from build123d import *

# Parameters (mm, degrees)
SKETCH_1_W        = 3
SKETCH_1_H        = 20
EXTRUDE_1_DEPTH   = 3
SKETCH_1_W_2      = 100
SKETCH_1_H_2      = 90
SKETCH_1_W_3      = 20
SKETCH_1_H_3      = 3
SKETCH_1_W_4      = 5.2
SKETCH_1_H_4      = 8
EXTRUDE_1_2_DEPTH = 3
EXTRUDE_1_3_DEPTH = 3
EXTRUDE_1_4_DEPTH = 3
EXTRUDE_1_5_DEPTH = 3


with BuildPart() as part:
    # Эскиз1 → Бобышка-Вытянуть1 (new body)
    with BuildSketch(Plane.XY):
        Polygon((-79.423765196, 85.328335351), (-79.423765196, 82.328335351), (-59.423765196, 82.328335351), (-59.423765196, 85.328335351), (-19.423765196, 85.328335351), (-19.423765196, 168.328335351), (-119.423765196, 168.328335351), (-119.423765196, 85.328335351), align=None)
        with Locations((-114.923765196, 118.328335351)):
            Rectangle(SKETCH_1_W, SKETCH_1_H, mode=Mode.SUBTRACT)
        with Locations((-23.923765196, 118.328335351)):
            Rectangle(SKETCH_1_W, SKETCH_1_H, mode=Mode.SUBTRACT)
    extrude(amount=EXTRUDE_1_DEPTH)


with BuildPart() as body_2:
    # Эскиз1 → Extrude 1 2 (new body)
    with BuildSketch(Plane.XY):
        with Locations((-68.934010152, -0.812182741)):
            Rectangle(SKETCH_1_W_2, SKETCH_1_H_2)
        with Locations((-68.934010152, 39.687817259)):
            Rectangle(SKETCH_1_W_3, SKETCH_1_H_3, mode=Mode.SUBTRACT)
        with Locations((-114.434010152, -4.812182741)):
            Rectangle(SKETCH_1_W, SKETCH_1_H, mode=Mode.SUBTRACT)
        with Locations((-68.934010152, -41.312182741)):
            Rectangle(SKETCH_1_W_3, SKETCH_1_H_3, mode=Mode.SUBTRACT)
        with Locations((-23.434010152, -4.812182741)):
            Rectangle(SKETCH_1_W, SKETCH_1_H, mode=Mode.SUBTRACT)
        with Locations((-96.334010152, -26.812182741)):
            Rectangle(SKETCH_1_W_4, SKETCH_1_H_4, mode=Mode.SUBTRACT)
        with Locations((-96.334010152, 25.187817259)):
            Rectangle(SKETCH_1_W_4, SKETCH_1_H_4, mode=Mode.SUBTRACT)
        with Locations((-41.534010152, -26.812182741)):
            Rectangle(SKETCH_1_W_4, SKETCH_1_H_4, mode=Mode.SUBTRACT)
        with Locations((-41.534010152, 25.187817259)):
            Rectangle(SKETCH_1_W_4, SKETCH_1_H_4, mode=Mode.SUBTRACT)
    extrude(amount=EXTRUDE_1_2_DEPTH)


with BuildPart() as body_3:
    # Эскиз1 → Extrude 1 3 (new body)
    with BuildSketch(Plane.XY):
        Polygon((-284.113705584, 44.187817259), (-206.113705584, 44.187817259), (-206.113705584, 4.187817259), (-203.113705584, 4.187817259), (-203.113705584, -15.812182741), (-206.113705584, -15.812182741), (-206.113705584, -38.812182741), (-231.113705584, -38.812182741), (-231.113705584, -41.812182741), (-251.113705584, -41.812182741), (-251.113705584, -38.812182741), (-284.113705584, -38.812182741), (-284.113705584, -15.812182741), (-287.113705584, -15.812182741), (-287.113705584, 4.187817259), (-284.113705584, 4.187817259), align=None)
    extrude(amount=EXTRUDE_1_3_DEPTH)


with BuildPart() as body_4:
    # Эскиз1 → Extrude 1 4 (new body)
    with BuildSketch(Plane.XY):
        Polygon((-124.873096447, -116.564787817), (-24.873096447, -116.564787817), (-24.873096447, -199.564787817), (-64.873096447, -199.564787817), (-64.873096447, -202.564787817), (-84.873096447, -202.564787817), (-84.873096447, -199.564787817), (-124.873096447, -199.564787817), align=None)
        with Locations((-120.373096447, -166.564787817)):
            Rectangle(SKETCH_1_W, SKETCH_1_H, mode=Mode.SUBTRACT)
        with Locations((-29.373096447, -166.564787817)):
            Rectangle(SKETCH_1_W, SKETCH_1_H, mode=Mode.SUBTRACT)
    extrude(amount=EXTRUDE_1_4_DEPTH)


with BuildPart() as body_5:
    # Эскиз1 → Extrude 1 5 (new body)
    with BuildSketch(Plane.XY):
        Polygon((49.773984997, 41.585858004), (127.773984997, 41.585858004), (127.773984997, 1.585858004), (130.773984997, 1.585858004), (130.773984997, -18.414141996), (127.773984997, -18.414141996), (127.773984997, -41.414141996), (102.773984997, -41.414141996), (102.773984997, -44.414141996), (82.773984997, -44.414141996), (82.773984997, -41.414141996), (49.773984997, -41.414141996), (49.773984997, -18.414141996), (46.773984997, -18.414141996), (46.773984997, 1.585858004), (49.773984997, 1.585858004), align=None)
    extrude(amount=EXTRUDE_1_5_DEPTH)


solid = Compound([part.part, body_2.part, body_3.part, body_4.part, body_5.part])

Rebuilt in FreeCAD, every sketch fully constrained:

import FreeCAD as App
import Part
import Sketcher

V = App.Vector
Q = App.Units.Quantity


def add_polygon(sketch, points):
    """Adds a closed chain of lines whose ends are joined by coincident constraints."""
    first, n = sketch.GeometryCount, len(points)
    for a, b in zip(points, points[1:] + points[:1]):
        sketch.addGeometry(Part.LineSegment(App.Vector(*a, 0), App.Vector(*b, 0)), False)
    for i in range(n):
        sketch.addConstraint(Sketcher.Constraint("Coincident", first + i, 2, first + (i + 1) % n, 1))

doc = App.newDocument("Part")
body = doc.addObject("PartDesign::Body", "Body")

# Sketch on XY plane
sketch1 = body.newObject("Sketcher::SketchObject", "Sketch")
sketch1.AttachmentSupport = (doc.getObject("XY_Plane"), [""])
sketch1.MapMode = "FlatFace"
add_polygon(sketch1, [(-79.4, 85.3), (-79.4, 82.3), (-59.4, 82.3), (-59.4, 85.3), (-19.4, 85.3), (-19.4, 168.3), (-119.4, 168.3), (-119.4, 85.3)])  # lines 0-7
add_polygon(sketch1, [(-113.4, 108.3), (-116.4, 108.3), (-116.4, 128.3), (-113.4, 128.3)])  # lines 8-11
add_polygon(sketch1, [(-22.4, 108.3), (-25.4, 108.3), (-25.4, 128.3), (-22.4, 128.3)])  # lines 12-15
sketch1.addConstraint([
    Sketcher.Constraint("Vertical", 0),
    Sketcher.Constraint("Horizontal", 1),
    Sketcher.Constraint("Vertical", 2),
    Sketcher.Constraint("Horizontal", 3),
    Sketcher.Constraint("Vertical", 4),
    Sketcher.Constraint("Horizontal", 5),
    Sketcher.Constraint("Vertical", 6),
    Sketcher.Constraint("Horizontal", 7),
    Sketcher.Constraint("Horizontal", 8),
    Sketcher.Constraint("Vertical", 9),
    Sketcher.Constraint("Horizontal", 10),
    Sketcher.Constraint("Vertical", 11),
    Sketcher.Constraint("Horizontal", 12),
    Sketcher.Constraint("Vertical", 13),
    Sketcher.Constraint("Horizontal", 14),
    Sketcher.Constraint("Vertical", 15),
    Sketcher.Constraint("Horizontal", 3, 2, 6, 2),
    Sketcher.Constraint("Horizontal", 11, 2, 12, 2),
    Sketcher.Constraint("Horizontal", 10, 2, 13, 2),
    Sketcher.Constraint("Equal", 3, 7),
    Sketcher.Constraint("Equal", 10, 12),
    Sketcher.Constraint("Equal", 14, 0),
    Sketcher.Constraint("Equal", 1, 9),
    Sketcher.Constraint("DistanceX", 1, 1, 1, 2, Q("20 mm")),
    Sketcher.Constraint("DistanceX", 3, 1, 3, 2, Q("40 mm")),
    Sketcher.Constraint("DistanceX", 8, 2, 8, 1, Q("3 mm")),
    Sketcher.Constraint("DistanceY", 4, 1, 4, 2, Q("83 mm")),
    Sketcher.Constraint("DistanceX", 6, 2, 8, 2, Q("3 mm")),
    Sketcher.Constraint("DistanceY", 6, 2, 8, 2, Q("23 mm")),
    Sketcher.Constraint("DistanceX", 12, 2, 3, 2, Q("6 mm")),
    Sketcher.Constraint("DistanceX", 0, 2, -1, 1, Q("79.423765 mm")),
    Sketcher.Constraint("DistanceY", -1, 1, 0, 2, Q("82.328335 mm")),
])
pad1 = body.newObject("PartDesign::Pad", "Pad")
pad1.Profile = sketch1
pad1.Length = 3
body2 = doc.addObject("PartDesign::Body", "Body001")

# Sketch on XY plane
sketch2 = body2.newObject("Sketcher::SketchObject", "Sketch001")
sketch2.AttachmentSupport = (doc.getObject("XY_Plane001"), [""])
sketch2.MapMode = "FlatFace"
add_polygon(sketch2, [(-118.9, 44.2), (-118.9, -45.8), (-18.9, -45.8), (-18.9, 44.2)])  # lines 0-3
add_polygon(sketch2, [(-93.7, -30.8), (-98.9, -30.8), (-98.9, -22.8), (-93.7, -22.8)])  # lines 4-7
add_polygon(sketch2, [(-112.9, -14.8), (-115.9, -14.8), (-115.9, 5.2), (-112.9, 5.2)])  # lines 8-11
add_polygon(sketch2, [(-58.9, -42.8), (-78.9, -42.8), (-78.9, -39.8), (-58.9, -39.8)])  # lines 12-15
add_polygon(sketch2, [(-38.9, -30.8), (-44.1, -30.8), (-44.1, -22.8), (-38.9, -22.8)])  # lines 16-19
add_polygon(sketch2, [(-21.9, -14.8), (-24.9, -14.8), (-24.9, 5.2), (-21.9, 5.2)])  # lines 20-23
add_polygon(sketch2, [(-93.7, 21.2), (-98.9, 21.2), (-98.9, 29.2), (-93.7, 29.2)])  # lines 24-27
add_polygon(sketch2, [(-58.9, 38.2), (-78.9, 38.2), (-78.9, 41.2), (-58.9, 41.2)])  # lines 28-31
add_polygon(sketch2, [(-38.9, 21.2), (-44.1, 21.2), (-44.1, 29.2), (-38.9, 29.2)])  # lines 32-35
sketch2.addConstraint([
    Sketcher.Constraint("Vertical", 0),
    Sketcher.Constraint("Horizontal", 1),
    Sketcher.Constraint("Vertical", 2),
    Sketcher.Constraint("Horizontal", 3),
    Sketcher.Constraint("Horizontal", 4),
    Sketcher.Constraint("Vertical", 5),
    Sketcher.Constraint("Horizontal", 6),
    Sketcher.Constraint("Vertical", 7),
    Sketcher.Constraint("Horizontal", 8),
    Sketcher.Constraint("Vertical", 9),
    Sketcher.Constraint("Horizontal", 10),
    Sketcher.Constraint("Vertical", 11),
    Sketcher.Constraint("Horizontal", 12),
    Sketcher.Constraint("Vertical", 13),
    Sketcher.Constraint("Horizontal", 14),
    Sketcher.Constraint("Vertical", 15),
    Sketcher.Constraint("Horizontal", 16),
    Sketcher.Constraint("Vertical", 17),
    Sketcher.Constraint("Horizontal", 18),
    Sketcher.Constraint("Vertical", 19),
    Sketcher.Constraint("Horizontal", 20),
    Sketcher.Constraint("Vertical", 21),
    Sketcher.Constraint("Horizontal", 22),
    Sketcher.Constraint("Vertical", 23),
    Sketcher.Constraint("Horizontal", 24),
    Sketcher.Constraint("Vertical", 25),
    Sketcher.Constraint("Horizontal", 26),
    Sketcher.Constraint("Vertical", 27),
    Sketcher.Constraint("Horizontal", 28),
    Sketcher.Constraint("Vertical", 29),
    Sketcher.Constraint("Horizontal", 30),
    Sketcher.Constraint("Vertical", 31),
    Sketcher.Constraint("Horizontal", 32),
    Sketcher.Constraint("Vertical", 33),
    Sketcher.Constraint("Horizontal", 34),
    Sketcher.Constraint("Vertical", 35),
    Sketcher.Constraint("Horizontal", 7, 2, 16, 2),
    Sketcher.Constraint("Horizontal", 6, 2, 17, 2),
    Sketcher.Constraint("Horizontal", 11, 2, 20, 2),
    Sketcher.Constraint("Horizontal", 10, 2, 21, 2),
    Sketcher.Constraint("Horizontal", 27, 2, 32, 2),
    Sketcher.Constraint("Horizontal", 26, 2, 33, 2),
    Sketcher.Constraint("Vertical", 5, 2, 24, 2),
    Sketcher.Constraint("Vertical", 7, 2, 26, 2),
    Sketcher.Constraint("Vertical", 13, 2, 28, 2),
    Sketcher.Constraint("Vertical", 15, 2, 30, 2),
    Sketcher.Constraint("Vertical", 17, 2, 32, 2),
    Sketcher.Constraint("Vertical", 19, 2, 34, 2),
    Sketcher.Constraint("Equal", 6, 16),
    Sketcher.Constraint("Equal", 10, 20),
    Sketcher.Constraint("Equal", 30, 9),
    Sketcher.Constraint("Equal", 22, 13),
    Sketcher.Constraint("Equal", 19, 25),
    Sketcher.Constraint("Equal", 15, 29),
    Sketcher.Constraint("DistanceX", 1, 1, 1, 2, Q("100 mm")),
    Sketcher.Constraint("DistanceX", 8, 2, 8, 1, Q("3 mm")),
    Sketcher.Constraint("DistanceX", 12, 2, 12, 1, Q("20 mm")),
    Sketcher.Constraint("DistanceY", 0, 2, 0, 1, Q("90 mm")),
    Sketcher.Constraint("DistanceY", 5, 1, 5, 2, Q("8 mm")),
    Sketcher.Constraint("DistanceX", 4, 2, 4, 1, Q("5.2 mm")),
    Sketcher.Constraint("DistanceX", 0, 2, 4, 2, Q("20 mm")),
    Sketcher.Constraint("DistanceY", 0, 2, 4, 2, Q("15 mm")),
    Sketcher.Constraint("DistanceX", 8, 2, 5, 2, Q("17 mm")),
    Sketcher.Constraint("DistanceY", 5, 2, 8, 2, Q("8 mm")),
    Sketcher.Constraint("DistanceY", 12, 2, 7, 2, Q("12 mm")),
    Sketcher.Constraint("DistanceX", 4, 2, 12, 2, Q("20 mm")),
    Sketcher.Constraint("DistanceX", 14, 2, 18, 2, Q("20 mm")),
    Sketcher.Constraint("DistanceX", 18, 2, 20, 2, Q("14 mm")),
    Sketcher.Constraint("DistanceY", 10, 2, 24, 2, Q("16 mm")),
    Sketcher.Constraint("DistanceY", 26, 2, 28, 2, Q("9 mm")),
    Sketcher.Constraint("DistanceX", 0, 2, -1, 1, Q("118.93401 mm")),
    Sketcher.Constraint("DistanceY", 0, 2, -1, 1, Q("45.812183 mm")),
])
pad2 = body2.newObject("PartDesign::Pad", "Pad001")
pad2.Profile = sketch2
pad2.Length = 3
body3 = doc.addObject("PartDesign::Body", "Body002")

# Sketch on XY plane
sketch3 = body3.newObject("Sketcher::SketchObject", "Sketch002")
sketch3.AttachmentSupport = (doc.getObject("XY_Plane002"), [""])
sketch3.MapMode = "FlatFace"
add_polygon(sketch3, [(-206.1, 44.2), (-284.1, 44.2), (-284.1, 4.2), (-287.1, 4.2), (-287.1, -15.8), (-284.1, -15.8), (-284.1, -38.8), (-251.1, -38.8), (-251.1, -41.8), (-231.1, -41.8), (-231.1, -38.8), (-206.1, -38.8), (-206.1, -15.8), (-203.1, -15.8), (-203.1, 4.2), (-206.1, 4.2)])  # lines 0-15
sketch3.addConstraint([
    Sketcher.Constraint("Horizontal", 0),
    Sketcher.Constraint("Vertical", 1),
    Sketcher.Constraint("Horizontal", 2),
    Sketcher.Constraint("Vertical", 3),
    Sketcher.Constraint("Horizontal", 4),
    Sketcher.Constraint("Vertical", 5),
    Sketcher.Constraint("Horizontal", 6),
    Sketcher.Constraint("Vertical", 7),
    Sketcher.Constraint("Horizontal", 8),
    Sketcher.Constraint("Vertical", 9),
    Sketcher.Constraint("Horizontal", 10),
    Sketcher.Constraint("Vertical", 11),
    Sketcher.Constraint("Horizontal", 12),
    Sketcher.Constraint("Vertical", 13),
    Sketcher.Constraint("Horizontal", 14),
    Sketcher.Constraint("Vertical", 15),
    Sketcher.Constraint("Horizontal", 6, 2, 9, 2),
    Sketcher.Constraint("Horizontal", 4, 2, 11, 2),
    Sketcher.Constraint("Horizontal", 2, 2, 13, 2),
    Sketcher.Constraint("Vertical", 1, 2, 4, 2),
    Sketcher.Constraint("Vertical", 11, 2, 14, 2),
    Sketcher.Constraint("Equal", 4, 12),
    Sketcher.Constraint("Equal", 8, 3),
    Sketcher.Constraint("Equal", 14, 7),
    Sketcher.Constraint("DistanceX", 0, 2, 0, 1, Q("78 mm")),
    Sketcher.Constraint("DistanceX", 2, 2, 2, 1, Q("3 mm")),
    Sketcher.Constraint("DistanceX", 6, 1, 6, 2, Q("33 mm")),
    Sketcher.Constraint("DistanceX", 8, 1, 8, 2, Q("20 mm")),
    Sketcher.Constraint("DistanceY", 1, 2, 1, 1, Q("40 mm")),
    Sketcher.Constraint("DistanceY", 5, 2, 5, 1, Q("23 mm")),
    Sketcher.Constraint("DistanceX", 0, 2, -1, 1, Q("284.113706 mm")),
    Sketcher.Constraint("DistanceY", -1, 1, 0, 2, Q("44.187817 mm")),
])
pad3 = body3.newObject("PartDesign::Pad", "Pad002")
pad3.Profile = sketch3
pad3.Length = 3
body4 = doc.addObject("PartDesign::Body", "Body003")

# Sketch on XY plane
sketch4 = body4.newObject("Sketcher::SketchObject", "Sketch003")
sketch4.AttachmentSupport = (doc.getObject("XY_Plane003"), [""])
sketch4.MapMode = "FlatFace"
add_polygon(sketch4, [(-24.9, -116.6), (-124.9, -116.6), (-124.9, -199.6), (-84.9, -199.6), (-84.9, -202.6), (-64.9, -202.6), (-64.9, -199.6), (-24.9, -199.6)])  # lines 0-7
add_polygon(sketch4, [(-30.9, -176.6), (-30.9, -156.6), (-27.9, -156.6), (-27.9, -176.6)])  # lines 8-11
add_polygon(sketch4, [(-121.9, -176.6), (-121.9, -156.6), (-118.9, -156.6), (-118.9, -176.6)])  # lines 12-15
sketch4.addConstraint([
    Sketcher.Constraint("Horizontal", 0),
    Sketcher.Constraint("Vertical", 1),
    Sketcher.Constraint("Horizontal", 2),
    Sketcher.Constraint("Vertical", 3),
    Sketcher.Constraint("Horizontal", 4),
    Sketcher.Constraint("Vertical", 5),
    Sketcher.Constraint("Horizontal", 6),
    Sketcher.Constraint("Vertical", 7),
    Sketcher.Constraint("Vertical", 8),
    Sketcher.Constraint("Horizontal", 9),
    Sketcher.Constraint("Vertical", 10),
    Sketcher.Constraint("Horizontal", 11),
    Sketcher.Constraint("Vertical", 12),
    Sketcher.Constraint("Horizontal", 13),
    Sketcher.Constraint("Vertical", 14),
    Sketcher.Constraint("Horizontal", 15),
    Sketcher.Constraint("Horizontal", 2, 2, 5, 2),
    Sketcher.Constraint("Horizontal", 9, 2, 12, 2),
    Sketcher.Constraint("Horizontal", 11, 2, 14, 2),
    Sketcher.Constraint("Equal", 2, 6),
    Sketcher.Constraint("Equal", 11, 13),
    Sketcher.Constraint("Equal", 15, 3),
    Sketcher.Constraint("Equal", 4, 8),
    Sketcher.Constraint("DistanceX", 0, 2, 0, 1, Q("100 mm")),
    Sketcher.Constraint("DistanceX", 2, 1, 2, 2, Q("40 mm")),
    Sketcher.Constraint("DistanceX", 9, 1, 9, 2, Q("3 mm")),
    Sketcher.Constraint("DistanceY", 1, 2, 1, 1, Q("83 mm")),
    Sketcher.Constraint("DistanceX", 8, 2, 7, 2, Q("6 mm")),
    Sketcher.Constraint("DistanceY", 8, 2, 7, 2, Q("40 mm")),
    Sketcher.Constraint("DistanceX", 0, 2, 12, 2, Q("3 mm")),
    Sketcher.Constraint("DistanceX", 0, 2, -1, 1, Q("124.873096 mm")),
    Sketcher.Constraint("DistanceY", 0, 2, -1, 1, Q("116.564788 mm")),
])
pad4 = body4.newObject("PartDesign::Pad", "Pad003")
pad4.Profile = sketch4
pad4.Length = 3
body5 = doc.addObject("PartDesign::Body", "Body004")

# Sketch on XY plane
sketch5 = body5.newObject("Sketcher::SketchObject", "Sketch004")
sketch5.AttachmentSupport = (doc.getObject("XY_Plane004"), [""])
sketch5.MapMode = "FlatFace"
add_polygon(sketch5, [(127.8, 41.6), (49.8, 41.6), (49.8, 1.6), (46.8, 1.6), (46.8, -18.4), (49.8, -18.4), (49.8, -41.4), (82.8, -41.4), (82.8, -44.4), (102.8, -44.4), (102.8, -41.4), (127.8, -41.4), (127.8, -18.4), (130.8, -18.4), (130.8, 1.6), (127.8, 1.6)])  # lines 0-15
sketch5.addConstraint([
    Sketcher.Constraint("Horizontal", 0),
    Sketcher.Constraint("Vertical", 1),
    Sketcher.Constraint("Horizontal", 2),
    Sketcher.Constraint("Vertical", 3),
    Sketcher.Constraint("Horizontal", 4),
    Sketcher.Constraint("Vertical", 5),
    Sketcher.Constraint("Horizontal", 6),
    Sketcher.Constraint("Vertical", 7),
    Sketcher.Constraint("Horizontal", 8),
    Sketcher.Constraint("Vertical", 9),
    Sketcher.Constraint("Horizontal", 10),
    Sketcher.Constraint("Vertical", 11),
    Sketcher.Constraint("Horizontal", 12),
    Sketcher.Constraint("Vertical", 13),
    Sketcher.Constraint("Horizontal", 14),
    Sketcher.Constraint("Vertical", 15),
    Sketcher.Constraint("Horizontal", 6, 2, 9, 2),
    Sketcher.Constraint("Horizontal", 4, 2, 11, 2),
    Sketcher.Constraint("Horizontal", 2, 2, 13, 2),
    Sketcher.Constraint("Vertical", 1, 2, 4, 2),
    Sketcher.Constraint("Vertical", 11, 2, 14, 2),
    Sketcher.Constraint("Equal", 4, 12),
    Sketcher.Constraint("Equal", 8, 3),
    Sketcher.Constraint("Equal", 14, 7),
    Sketcher.Constraint("DistanceX", 0, 2, 0, 1, Q("78 mm")),
    Sketcher.Constraint("DistanceX", 2, 2, 2, 1, Q("3 mm")),
    Sketcher.Constraint("DistanceX", 6, 1, 6, 2, Q("33 mm")),
    Sketcher.Constraint("DistanceX", 8, 1, 8, 2, Q("20 mm")),
    Sketcher.Constraint("DistanceY", 1, 2, 1, 1, Q("40 mm")),
    Sketcher.Constraint("DistanceY", 5, 2, 5, 1, Q("23 mm")),
    Sketcher.Constraint("DistanceY", -1, 1, 0, 2, Q("41.585858 mm")),
    Sketcher.Constraint("DistanceX", -1, 1, 0, 2, Q("49.773985 mm")),
])
pad5 = body5.newObject("PartDesign::Pad", "Pad004")
pad5.Profile = sketch5
pad5.Length = 3

doc.recompute()
